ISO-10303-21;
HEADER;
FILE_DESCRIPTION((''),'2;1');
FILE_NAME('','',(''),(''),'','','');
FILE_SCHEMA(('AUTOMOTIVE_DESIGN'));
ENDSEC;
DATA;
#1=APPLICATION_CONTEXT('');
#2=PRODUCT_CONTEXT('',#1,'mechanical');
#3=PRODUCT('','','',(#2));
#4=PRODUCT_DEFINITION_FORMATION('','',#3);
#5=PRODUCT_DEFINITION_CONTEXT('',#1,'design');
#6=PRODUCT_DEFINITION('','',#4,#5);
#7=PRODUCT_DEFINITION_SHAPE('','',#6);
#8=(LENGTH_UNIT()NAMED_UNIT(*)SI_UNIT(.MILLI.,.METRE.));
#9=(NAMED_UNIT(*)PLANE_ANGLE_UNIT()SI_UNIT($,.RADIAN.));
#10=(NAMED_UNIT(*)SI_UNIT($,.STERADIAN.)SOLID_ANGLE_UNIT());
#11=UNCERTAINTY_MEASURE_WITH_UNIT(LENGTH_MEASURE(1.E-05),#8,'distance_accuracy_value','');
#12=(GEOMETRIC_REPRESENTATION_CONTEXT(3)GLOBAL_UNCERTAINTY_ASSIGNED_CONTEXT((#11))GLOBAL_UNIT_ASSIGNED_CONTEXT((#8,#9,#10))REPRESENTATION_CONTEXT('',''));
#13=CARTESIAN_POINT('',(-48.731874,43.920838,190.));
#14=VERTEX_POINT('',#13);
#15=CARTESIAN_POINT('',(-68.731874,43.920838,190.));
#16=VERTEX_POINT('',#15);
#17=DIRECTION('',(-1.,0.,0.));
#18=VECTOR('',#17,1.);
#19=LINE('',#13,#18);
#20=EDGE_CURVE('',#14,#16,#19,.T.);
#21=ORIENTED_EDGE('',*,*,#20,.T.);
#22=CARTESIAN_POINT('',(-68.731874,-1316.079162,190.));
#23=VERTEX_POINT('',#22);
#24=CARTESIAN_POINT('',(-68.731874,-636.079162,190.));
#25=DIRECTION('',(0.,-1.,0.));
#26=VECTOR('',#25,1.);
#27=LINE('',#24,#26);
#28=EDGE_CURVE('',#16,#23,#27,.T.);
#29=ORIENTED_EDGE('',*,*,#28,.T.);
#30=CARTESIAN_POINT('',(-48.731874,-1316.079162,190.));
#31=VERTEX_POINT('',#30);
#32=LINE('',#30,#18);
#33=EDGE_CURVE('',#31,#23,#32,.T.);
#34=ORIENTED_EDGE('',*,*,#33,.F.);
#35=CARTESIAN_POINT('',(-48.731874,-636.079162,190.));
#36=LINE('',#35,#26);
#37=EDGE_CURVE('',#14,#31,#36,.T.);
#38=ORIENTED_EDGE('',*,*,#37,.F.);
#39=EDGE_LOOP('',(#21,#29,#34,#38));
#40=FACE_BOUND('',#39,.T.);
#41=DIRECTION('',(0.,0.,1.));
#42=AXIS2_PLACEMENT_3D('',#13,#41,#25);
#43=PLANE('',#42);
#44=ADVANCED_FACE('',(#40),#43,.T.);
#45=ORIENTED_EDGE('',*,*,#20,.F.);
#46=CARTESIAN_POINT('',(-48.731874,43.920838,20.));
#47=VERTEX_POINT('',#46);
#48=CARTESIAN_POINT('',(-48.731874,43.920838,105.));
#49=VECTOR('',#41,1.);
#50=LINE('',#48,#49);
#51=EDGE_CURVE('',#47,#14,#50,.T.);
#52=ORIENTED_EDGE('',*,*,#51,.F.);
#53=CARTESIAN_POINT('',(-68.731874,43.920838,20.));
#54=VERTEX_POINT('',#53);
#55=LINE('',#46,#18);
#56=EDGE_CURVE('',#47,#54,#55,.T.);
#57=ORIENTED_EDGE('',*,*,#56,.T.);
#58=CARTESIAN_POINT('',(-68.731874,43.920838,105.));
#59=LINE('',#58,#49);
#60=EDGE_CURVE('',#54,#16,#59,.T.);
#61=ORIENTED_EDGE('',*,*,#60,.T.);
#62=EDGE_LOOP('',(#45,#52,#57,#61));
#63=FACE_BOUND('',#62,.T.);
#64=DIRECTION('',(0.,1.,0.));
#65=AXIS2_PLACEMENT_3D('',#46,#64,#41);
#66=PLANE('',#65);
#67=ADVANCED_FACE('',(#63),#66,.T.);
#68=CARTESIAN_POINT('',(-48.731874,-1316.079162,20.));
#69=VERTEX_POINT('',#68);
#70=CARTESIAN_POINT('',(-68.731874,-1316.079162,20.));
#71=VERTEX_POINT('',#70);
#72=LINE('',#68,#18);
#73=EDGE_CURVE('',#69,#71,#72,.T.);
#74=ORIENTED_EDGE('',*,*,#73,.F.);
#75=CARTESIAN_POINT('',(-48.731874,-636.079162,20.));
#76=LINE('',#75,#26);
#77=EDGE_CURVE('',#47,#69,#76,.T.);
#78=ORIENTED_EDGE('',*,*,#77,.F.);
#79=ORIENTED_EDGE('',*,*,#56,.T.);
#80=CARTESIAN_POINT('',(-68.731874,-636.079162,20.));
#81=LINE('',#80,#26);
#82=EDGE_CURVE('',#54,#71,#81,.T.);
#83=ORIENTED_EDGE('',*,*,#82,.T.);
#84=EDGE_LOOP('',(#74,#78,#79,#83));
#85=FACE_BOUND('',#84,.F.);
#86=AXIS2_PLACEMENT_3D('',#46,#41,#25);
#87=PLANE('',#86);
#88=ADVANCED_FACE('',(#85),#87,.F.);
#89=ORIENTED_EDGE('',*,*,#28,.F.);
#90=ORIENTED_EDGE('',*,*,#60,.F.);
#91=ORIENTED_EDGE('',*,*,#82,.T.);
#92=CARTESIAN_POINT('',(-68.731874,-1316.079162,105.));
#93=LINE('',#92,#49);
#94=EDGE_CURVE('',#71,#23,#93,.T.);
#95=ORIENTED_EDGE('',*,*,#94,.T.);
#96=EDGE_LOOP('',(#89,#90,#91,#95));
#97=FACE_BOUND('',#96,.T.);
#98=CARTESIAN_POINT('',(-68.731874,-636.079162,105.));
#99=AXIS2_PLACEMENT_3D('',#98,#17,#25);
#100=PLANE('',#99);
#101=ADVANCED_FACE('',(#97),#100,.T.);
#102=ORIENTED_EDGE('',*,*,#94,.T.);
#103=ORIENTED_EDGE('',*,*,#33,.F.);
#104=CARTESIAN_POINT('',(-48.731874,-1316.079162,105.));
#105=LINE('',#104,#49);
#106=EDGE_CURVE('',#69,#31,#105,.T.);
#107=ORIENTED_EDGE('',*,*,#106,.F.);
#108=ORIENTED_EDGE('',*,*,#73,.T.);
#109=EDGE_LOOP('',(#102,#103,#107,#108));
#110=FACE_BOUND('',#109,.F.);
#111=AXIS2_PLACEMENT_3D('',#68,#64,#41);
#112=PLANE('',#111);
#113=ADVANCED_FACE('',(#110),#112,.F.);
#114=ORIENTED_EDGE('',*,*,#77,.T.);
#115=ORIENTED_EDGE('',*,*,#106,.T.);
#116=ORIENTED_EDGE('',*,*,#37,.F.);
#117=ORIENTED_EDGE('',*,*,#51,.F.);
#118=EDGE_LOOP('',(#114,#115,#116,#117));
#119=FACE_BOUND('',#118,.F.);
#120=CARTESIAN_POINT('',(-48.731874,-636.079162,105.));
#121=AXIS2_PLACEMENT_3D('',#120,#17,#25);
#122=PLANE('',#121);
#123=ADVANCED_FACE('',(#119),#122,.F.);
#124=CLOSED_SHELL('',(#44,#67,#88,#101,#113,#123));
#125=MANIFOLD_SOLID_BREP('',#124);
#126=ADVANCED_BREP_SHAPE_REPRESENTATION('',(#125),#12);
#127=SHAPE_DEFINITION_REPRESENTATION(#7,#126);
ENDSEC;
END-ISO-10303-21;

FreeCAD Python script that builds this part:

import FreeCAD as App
import Part
import Sketcher

V = App.Vector
Q = App.Units.Quantity


def add_polygon(sketch, points):
    """Adds a closed chain of lines whose ends are joined by coincident constraints."""
    first, n = sketch.GeometryCount, len(points)
    for a, b in zip(points, points[1:] + points[:1]):
        sketch.addGeometry(Part.LineSegment(App.Vector(*a, 0), App.Vector(*b, 0)), False)
    for i in range(n):
        sketch.addConstraint(Sketcher.Constraint("Coincident", first + i, 2, first + (i + 1) % n, 1))

doc = App.newDocument("Part")
params = doc.addObject("Spreadsheet::Sheet", "Params")
for row, (alias, value) in enumerate([
    ("sketch1_width", "1360 mm"),
    ("sketch1_height", "170 mm"),
    ("pad1_length", "20 mm"),
], start=1):
    params.set(f"A{row}", alias)
    params.set(f"B{row}", "=" + value)
    params.setAlias(f"B{row}", alias)

body = doc.addObject("PartDesign::Body", "Body")

# Sketch on XY plane
sketch1 = body.newObject("Sketcher::SketchObject", "Sketch")
sketch1.AttachmentSupport = (doc.getObject("XY_Plane"), [""])
sketch1.MapMode = "FlatFace"
add_polygon(sketch1, [(-68.731874, 213.920838), (-68.731874, 43.920838), (1291.268126, 43.920838), (1291.268126, 213.920838)])  # lines 0-3
sketch1.addConstraint([
    Sketcher.Constraint("Vertical", 0),
    Sketcher.Constraint("Horizontal", 1),
    Sketcher.Constraint("Vertical", 2),
    Sketcher.Constraint("Horizontal", 3),
    Sketcher.Constraint("DistanceX", 1, 1, 1, 2, Q("1360 mm")),
    Sketcher.Constraint("DistanceY", 0, 2, 0, 1, Q("170 mm")),
    Sketcher.Constraint("DistanceX", 0, 2, -1, 1, Q("68.731874 mm")),
    Sketcher.Constraint("DistanceY", -1, 1, 0, 2, Q("43.920838 mm")),
])
sketch1.setExpression("Constraints[8]", "Params.sketch1_width")
sketch1.setExpression("Constraints[9]", "Params.sketch1_height")
pad1 = body.newObject("PartDesign::Pad", "Pad")
pad1.Profile = sketch1
pad1.setExpression("Length", "Params.pad1_length")
body2 = doc.addObject("PartDesign::Body", "Body001")
doc.recompute()

body.Placement = App.Placement(V(-112.652712, -24.811036, 0), App.Rotation(V(0, 0, -1), 90))
boolean = body2.newObject("PartDesign::Boolean", "Boolean")
boolean.Type = "Fuse"
boolean.addObjects([body])
body3 = doc.addObject("PartDesign::Body", "Body002")
doc.recompute()

body2.Placement = App.Placement(V(-48.731874, 0, 88.731874), App.Rotation(V(0, -1, 0), 90))
boolean2 = body3.newObject("PartDesign::Boolean", "Boolean001")
boolean2.Type = "Fuse"
boolean2.addObjects([body2])

doc.recompute()
